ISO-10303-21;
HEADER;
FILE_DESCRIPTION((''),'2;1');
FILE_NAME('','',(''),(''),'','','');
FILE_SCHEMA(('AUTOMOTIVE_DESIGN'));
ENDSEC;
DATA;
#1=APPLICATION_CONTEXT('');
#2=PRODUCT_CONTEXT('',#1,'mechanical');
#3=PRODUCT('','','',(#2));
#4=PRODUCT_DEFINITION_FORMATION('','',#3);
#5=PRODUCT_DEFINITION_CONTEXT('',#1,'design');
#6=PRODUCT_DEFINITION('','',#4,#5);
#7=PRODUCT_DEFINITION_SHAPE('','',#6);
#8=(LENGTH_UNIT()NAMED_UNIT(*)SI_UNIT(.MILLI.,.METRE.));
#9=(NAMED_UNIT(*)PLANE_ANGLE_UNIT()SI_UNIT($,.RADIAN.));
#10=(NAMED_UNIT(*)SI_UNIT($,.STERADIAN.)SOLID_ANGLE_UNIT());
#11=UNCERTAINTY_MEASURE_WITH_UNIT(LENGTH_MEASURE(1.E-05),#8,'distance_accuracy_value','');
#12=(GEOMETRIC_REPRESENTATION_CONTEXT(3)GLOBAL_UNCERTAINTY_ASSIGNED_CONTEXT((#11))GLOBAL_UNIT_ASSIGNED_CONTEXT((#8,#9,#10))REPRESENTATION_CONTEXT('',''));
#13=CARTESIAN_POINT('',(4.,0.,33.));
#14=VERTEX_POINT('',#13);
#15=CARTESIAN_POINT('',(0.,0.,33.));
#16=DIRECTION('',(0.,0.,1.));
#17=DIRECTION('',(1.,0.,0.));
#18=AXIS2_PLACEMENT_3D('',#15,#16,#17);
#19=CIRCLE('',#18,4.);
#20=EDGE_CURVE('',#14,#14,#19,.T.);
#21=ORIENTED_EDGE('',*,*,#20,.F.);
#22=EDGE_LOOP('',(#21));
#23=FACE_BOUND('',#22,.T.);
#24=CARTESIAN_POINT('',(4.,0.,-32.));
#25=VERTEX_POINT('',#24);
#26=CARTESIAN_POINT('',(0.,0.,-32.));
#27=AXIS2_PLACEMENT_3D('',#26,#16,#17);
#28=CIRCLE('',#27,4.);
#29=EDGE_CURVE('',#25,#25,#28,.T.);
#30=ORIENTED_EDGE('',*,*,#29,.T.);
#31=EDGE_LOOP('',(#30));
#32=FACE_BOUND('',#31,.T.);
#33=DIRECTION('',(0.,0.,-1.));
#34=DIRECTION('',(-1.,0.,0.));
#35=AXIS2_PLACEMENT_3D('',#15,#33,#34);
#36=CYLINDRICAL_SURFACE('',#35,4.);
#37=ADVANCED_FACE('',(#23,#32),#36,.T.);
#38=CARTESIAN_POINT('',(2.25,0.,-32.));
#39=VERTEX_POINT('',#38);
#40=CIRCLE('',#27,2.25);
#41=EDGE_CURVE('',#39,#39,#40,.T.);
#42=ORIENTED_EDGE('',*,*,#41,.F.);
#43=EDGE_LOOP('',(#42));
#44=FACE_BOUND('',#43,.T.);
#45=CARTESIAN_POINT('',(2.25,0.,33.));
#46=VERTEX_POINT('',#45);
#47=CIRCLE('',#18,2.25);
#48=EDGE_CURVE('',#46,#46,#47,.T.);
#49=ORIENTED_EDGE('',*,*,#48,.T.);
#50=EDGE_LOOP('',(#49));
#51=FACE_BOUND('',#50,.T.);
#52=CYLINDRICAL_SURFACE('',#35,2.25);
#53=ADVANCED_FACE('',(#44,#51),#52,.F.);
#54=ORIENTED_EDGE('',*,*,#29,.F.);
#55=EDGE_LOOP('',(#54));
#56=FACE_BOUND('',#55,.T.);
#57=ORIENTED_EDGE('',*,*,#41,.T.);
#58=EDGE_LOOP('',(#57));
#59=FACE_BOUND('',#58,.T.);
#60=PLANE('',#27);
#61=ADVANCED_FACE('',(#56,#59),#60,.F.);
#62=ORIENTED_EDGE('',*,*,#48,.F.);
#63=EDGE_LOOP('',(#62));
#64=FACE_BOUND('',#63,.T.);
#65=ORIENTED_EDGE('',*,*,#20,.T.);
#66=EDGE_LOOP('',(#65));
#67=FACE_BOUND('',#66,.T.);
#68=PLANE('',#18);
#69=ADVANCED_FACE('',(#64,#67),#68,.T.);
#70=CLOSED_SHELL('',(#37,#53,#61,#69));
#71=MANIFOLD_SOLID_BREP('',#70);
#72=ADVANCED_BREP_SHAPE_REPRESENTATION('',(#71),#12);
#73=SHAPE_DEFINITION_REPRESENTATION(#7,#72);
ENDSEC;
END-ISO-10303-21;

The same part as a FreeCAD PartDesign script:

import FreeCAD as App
import Part
import Sketcher

doc = App.newDocument("Part")
body = doc.addObject("PartDesign::Body", "Body")

# Sketch on XY plane
sketch1 = doc.addObject("Sketcher::SketchObject", "Sketch")
body.addObject(sketch1)
sketch1.AttachmentSupport = (doc.XY_Plane, [""])
sketch1.MapMode = "FlatFace"
sketch1.AttachmentOffset = App.Placement(App.Vector(0, 0, -32), App.Rotation())
sketch1.addGeometry([
    Part.Circle(App.Vector(0, 0, 0), App.Vector(0, 0, 1), 4),
    Part.Circle(App.Vector(0, 0, 0), App.Vector(0, 0, 1), 2.2),
], False)
sketch1.addConstraint([
    Sketcher.Constraint("Coincident", 0, 3, -1, 1),
    Sketcher.Constraint("Coincident", 1, 3, -1, 1),
    Sketcher.Constraint("Diameter", 0, 8.0),
    Sketcher.Constraint("Diameter", 1, 4.5),
])
pad1 = doc.addObject("PartDesign::Pad", "Pad")
body.addObject(pad1)
pad1.Profile = sketch1
pad1.Length = 65

doc.recompute()
